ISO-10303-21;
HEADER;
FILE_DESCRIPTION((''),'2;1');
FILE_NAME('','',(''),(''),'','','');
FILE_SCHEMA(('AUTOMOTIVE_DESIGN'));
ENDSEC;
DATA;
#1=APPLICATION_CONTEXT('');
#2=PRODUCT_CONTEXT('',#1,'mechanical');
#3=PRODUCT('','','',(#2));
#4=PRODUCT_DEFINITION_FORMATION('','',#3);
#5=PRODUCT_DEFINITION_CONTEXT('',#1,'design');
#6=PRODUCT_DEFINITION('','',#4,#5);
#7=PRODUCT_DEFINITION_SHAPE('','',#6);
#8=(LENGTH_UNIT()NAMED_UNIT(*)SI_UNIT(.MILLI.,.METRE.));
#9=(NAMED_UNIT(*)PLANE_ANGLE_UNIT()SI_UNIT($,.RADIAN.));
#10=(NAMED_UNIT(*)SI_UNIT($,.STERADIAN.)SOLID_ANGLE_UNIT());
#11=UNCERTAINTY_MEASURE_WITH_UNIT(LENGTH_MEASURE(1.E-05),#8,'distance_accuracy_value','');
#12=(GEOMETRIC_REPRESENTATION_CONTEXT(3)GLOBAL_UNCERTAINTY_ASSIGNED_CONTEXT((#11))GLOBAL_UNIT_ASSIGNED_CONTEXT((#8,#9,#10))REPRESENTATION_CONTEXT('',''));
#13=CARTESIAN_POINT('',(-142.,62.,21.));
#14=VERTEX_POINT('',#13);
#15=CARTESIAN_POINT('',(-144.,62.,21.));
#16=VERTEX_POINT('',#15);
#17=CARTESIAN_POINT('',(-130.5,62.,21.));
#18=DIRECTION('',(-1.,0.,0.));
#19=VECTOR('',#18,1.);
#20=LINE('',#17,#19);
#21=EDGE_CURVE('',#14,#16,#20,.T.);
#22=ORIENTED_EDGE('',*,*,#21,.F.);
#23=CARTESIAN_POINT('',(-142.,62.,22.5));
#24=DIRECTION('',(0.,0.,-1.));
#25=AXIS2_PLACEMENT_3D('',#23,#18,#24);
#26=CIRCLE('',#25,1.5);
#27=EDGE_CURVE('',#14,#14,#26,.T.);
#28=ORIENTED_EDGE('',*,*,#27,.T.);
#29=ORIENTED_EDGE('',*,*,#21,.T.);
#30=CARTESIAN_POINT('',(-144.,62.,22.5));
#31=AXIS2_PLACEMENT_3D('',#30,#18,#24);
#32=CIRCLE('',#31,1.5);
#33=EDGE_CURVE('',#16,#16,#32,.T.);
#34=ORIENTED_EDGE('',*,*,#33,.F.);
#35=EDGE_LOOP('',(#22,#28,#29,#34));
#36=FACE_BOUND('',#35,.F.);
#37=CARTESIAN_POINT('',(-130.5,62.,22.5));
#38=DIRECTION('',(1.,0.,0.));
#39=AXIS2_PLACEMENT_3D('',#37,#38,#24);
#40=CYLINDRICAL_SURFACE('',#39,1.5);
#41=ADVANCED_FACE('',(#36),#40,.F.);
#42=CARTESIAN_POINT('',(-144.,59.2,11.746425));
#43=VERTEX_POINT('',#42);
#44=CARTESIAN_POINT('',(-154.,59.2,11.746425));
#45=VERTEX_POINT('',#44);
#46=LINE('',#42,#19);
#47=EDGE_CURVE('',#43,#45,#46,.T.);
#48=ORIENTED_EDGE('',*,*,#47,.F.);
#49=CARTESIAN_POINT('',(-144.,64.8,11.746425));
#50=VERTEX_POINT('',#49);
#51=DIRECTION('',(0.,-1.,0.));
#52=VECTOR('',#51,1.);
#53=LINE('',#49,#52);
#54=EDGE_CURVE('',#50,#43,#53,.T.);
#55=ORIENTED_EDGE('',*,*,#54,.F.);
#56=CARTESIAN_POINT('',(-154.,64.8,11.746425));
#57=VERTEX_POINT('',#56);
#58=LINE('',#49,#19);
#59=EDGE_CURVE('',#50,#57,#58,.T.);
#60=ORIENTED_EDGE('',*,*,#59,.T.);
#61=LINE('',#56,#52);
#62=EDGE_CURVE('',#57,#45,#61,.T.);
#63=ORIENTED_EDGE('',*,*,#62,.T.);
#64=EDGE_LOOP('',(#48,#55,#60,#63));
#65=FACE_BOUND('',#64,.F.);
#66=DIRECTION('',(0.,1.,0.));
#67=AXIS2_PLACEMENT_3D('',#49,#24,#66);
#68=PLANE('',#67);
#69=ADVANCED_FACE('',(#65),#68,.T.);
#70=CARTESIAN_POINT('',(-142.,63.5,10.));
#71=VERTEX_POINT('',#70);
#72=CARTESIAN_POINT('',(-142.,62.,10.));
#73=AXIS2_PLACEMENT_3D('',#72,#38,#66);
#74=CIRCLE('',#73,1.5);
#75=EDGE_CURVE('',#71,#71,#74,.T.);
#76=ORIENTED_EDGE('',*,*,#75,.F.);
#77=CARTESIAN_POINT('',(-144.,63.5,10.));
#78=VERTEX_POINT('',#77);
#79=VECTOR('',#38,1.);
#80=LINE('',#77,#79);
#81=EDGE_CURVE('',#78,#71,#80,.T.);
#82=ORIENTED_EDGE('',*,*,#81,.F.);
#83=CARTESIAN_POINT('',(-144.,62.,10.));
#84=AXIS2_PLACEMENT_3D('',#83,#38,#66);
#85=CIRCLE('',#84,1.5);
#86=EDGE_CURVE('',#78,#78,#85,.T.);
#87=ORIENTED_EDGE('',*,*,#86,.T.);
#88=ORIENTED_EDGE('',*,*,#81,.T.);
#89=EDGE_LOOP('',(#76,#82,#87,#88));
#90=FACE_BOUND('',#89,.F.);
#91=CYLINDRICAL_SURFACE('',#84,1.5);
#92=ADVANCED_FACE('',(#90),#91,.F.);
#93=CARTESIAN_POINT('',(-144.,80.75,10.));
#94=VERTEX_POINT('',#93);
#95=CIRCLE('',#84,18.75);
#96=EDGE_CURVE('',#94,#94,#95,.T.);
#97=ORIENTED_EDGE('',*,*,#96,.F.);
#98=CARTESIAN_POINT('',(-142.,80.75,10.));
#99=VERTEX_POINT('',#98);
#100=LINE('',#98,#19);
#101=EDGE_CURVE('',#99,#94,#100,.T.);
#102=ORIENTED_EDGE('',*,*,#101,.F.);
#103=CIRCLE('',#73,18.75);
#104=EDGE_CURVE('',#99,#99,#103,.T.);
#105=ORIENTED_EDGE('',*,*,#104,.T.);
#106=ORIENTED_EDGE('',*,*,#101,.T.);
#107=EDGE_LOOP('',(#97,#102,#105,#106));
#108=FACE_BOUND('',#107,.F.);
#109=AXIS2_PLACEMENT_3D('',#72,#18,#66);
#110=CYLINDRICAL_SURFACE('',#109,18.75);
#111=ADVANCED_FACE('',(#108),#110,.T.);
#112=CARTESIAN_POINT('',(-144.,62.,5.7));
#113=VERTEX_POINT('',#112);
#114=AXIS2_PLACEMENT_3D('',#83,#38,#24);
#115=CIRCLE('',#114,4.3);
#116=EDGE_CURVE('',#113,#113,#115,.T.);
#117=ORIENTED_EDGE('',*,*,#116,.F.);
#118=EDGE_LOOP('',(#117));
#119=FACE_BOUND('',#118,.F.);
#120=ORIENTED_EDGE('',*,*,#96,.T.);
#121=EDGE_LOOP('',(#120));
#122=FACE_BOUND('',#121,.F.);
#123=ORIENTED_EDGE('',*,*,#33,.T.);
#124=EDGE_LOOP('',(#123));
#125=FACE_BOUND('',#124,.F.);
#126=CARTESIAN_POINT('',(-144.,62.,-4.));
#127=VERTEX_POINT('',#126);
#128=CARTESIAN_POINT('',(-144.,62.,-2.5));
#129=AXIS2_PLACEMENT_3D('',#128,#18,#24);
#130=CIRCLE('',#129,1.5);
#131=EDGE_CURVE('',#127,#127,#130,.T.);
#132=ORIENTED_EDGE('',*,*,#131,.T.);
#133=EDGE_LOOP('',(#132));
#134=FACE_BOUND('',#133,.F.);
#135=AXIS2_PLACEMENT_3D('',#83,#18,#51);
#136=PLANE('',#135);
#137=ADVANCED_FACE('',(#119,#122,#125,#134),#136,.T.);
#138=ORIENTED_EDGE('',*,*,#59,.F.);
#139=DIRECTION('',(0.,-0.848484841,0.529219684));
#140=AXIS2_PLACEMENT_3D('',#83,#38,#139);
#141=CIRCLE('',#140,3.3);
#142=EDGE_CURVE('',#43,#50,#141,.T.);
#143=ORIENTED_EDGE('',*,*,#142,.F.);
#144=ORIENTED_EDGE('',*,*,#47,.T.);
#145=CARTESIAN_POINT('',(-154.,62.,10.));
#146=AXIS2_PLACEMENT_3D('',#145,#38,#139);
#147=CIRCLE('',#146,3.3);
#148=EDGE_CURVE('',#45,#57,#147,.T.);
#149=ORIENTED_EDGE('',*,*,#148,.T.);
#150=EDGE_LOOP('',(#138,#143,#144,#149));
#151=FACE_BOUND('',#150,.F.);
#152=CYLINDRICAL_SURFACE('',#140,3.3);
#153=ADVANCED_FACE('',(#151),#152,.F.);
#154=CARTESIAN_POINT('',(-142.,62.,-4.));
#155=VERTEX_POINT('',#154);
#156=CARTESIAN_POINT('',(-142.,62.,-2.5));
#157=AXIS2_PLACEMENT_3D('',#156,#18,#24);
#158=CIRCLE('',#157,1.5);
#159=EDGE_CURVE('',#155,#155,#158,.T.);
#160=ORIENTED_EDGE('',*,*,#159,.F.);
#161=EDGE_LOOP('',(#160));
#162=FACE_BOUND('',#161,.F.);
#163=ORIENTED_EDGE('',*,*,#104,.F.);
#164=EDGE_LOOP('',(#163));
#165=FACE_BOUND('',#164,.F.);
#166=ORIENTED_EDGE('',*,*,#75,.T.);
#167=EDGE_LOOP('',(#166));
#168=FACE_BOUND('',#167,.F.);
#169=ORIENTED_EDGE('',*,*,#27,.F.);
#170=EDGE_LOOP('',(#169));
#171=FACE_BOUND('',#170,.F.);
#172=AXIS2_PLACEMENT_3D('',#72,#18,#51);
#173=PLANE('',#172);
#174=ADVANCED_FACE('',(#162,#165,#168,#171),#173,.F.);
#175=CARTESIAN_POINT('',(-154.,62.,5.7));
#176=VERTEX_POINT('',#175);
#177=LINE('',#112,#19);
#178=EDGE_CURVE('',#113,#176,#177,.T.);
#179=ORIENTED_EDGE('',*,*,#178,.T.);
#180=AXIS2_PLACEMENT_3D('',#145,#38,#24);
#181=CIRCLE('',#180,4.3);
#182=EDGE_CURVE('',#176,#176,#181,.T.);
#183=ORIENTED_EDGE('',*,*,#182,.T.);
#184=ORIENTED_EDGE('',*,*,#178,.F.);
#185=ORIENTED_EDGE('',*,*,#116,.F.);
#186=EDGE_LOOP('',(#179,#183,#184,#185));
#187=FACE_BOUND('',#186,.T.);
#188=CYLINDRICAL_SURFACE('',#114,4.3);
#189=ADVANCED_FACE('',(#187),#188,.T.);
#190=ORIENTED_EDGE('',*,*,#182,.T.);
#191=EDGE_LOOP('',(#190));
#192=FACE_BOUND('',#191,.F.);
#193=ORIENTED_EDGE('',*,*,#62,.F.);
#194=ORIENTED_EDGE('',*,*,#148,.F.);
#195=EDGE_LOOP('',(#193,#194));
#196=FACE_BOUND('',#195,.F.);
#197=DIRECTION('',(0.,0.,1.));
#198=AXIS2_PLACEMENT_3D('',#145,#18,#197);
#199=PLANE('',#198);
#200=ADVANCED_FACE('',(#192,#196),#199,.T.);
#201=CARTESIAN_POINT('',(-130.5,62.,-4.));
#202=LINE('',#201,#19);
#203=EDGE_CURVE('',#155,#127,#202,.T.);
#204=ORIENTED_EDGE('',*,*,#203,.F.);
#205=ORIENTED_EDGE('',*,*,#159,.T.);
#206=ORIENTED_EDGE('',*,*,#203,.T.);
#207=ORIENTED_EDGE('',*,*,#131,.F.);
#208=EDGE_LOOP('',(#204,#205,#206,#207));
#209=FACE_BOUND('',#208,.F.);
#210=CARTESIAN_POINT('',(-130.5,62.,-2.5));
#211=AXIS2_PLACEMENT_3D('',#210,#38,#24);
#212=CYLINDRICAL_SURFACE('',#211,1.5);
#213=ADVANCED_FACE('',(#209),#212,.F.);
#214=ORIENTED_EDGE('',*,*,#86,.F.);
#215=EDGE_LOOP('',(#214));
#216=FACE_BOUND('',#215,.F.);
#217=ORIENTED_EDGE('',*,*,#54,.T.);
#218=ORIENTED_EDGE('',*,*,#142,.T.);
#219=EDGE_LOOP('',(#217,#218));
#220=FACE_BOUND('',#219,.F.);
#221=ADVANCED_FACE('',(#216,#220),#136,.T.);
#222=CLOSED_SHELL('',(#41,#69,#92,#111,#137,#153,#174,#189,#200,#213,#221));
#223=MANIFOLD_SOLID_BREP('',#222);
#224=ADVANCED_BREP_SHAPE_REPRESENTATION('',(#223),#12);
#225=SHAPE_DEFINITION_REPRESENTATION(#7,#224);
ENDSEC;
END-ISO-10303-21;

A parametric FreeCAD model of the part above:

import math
import FreeCAD as App
import Part
import Sketcher

V = App.Vector
Q = App.Units.Quantity


def add_polygon(sketch, points):
    """Adds a closed chain of lines whose ends are joined by coincident constraints."""
    first, n = sketch.GeometryCount, len(points)
    for a, b in zip(points, points[1:] + points[:1]):
        sketch.addGeometry(Part.LineSegment(App.Vector(*a, 0), App.Vector(*b, 0)), False)
    for i in range(n):
        sketch.addConstraint(Sketcher.Constraint("Coincident", first + i, 2, first + (i + 1) % n, 1))

doc = App.newDocument("Part")
body = doc.addObject("PartDesign::Body", "Body")

sketch1 = doc.addObject("Sketcher::SketchObject", "Sketch")
body.addObject(sketch1)
sketch1.AttachmentSupport = (doc.XY_Plane, [""])
sketch1.MapMode = "FlatFace"
sketch1.addGeometry(Part.Circle(V(0, 0, 0), V(0, 0, 1), 1.5), False)
sketch1.addConstraint(Sketcher.Constraint("Coincident", 0, 3, -1, 1))
sketch1.addConstraint(Sketcher.Constraint("Diameter", 0, Q("3 mm")))
pad1 = doc.addObject("PartDesign::Pad", "Pad")
body.addObject(pad1)
pad1.Profile = sketch1
pad1.Length = 15
body2 = doc.addObject("PartDesign::Body", "Body001")
doc.recompute()

body.Placement = App.Placement(V(0, 0, 0), App.Rotation(V(0, 1, 0), 90))
boolean = doc.addObject("PartDesign::Boolean", "Boolean")
body2.addObject(boolean)
boolean.Type = "Fuse"
boolean.addObjects([body])
body3 = doc.addObject("PartDesign::Body", "Body002")
doc.recompute()

body2.Placement = App.Placement(V(163.5, 47, -2.5), App.Rotation(V(0, 0, 1), 0))
boolean2 = doc.addObject("PartDesign::Boolean", "Boolean001")
body3.addObject(boolean2)
boolean2.Type = "Fuse"
boolean2.addObjects([body2])
body4 = doc.addObject("PartDesign::Body", "Body003")

sketch2 = doc.addObject("Sketcher::SketchObject", "Sketch001")
body4.addObject(sketch2)
sketch2.AttachmentSupport = (doc.getObject("XY_Plane003"), [""])
sketch2.MapMode = "FlatFace"
sketch2.addGeometry(Part.Circle(V(0, 0, 0), V(0, 0, 1), 1.5), False)
sketch2.addConstraint(Sketcher.Constraint("Coincident", 0, 3, -1, 1))
sketch2.addConstraint(Sketcher.Constraint("Diameter", 0, Q("3 mm")))
pad2 = doc.addObject("PartDesign::Pad", "Pad001")
body4.addObject(pad2)
pad2.Profile = sketch2
pad2.Length = 15
body5 = doc.addObject("PartDesign::Body", "Body004")
doc.recompute()

body4.Placement = App.Placement(V(0, 0, 0), App.Rotation(V(0, 1, 0), 90))
boolean3 = doc.addObject("PartDesign::Boolean", "Boolean002")
body5.addObject(boolean3)
boolean3.Type = "Fuse"
boolean3.addObjects([body4])
body6 = doc.addObject("PartDesign::Body", "Body005")
body6.AllowCompound = True
doc.recompute()

body5.Placement = App.Placement(V(163.5, 47, 22.5), App.Rotation(V(0, 0, 1), 0))
boolean4 = doc.addObject("PartDesign::Boolean", "Boolean003")
body6.addObject(boolean4)
boolean4.Type = "Fuse"
boolean4.addObjects([body5])
doc.recompute()

boolean5 = doc.addObject("PartDesign::Boolean", "Boolean004")
body6.addObject(boolean5)
boolean5.Type = "Fuse"
boolean5.addObjects([body3])
body7 = doc.addObject("PartDesign::Body", "Body006")

sketch3 = doc.addObject("Sketcher::SketchObject", "Sketch002")
body7.addObject(sketch3)
sketch3.AttachmentSupport = (doc.getObject("XY_Plane006"), [""])
sketch3.MapMode = "FlatFace"
sketch3.AttachmentOffset = App.Placement(V(0, 0, 2), App.Rotation())
sketch3.addGeometry(Part.Circle(V(0, 0, 0), V(0, 0, 1), 4.3), False)
sketch3.addGeometry(Part.LineSegment(V(-1.7, -2.8, 0), V(-1.7, 2.8, 0)), False)
sketch3.addGeometry(Part.ArcOfCircle(Part.Circle(V(0, 0, 0), V(0, 0, 1), 3.3), math.radians(-122), math.radians(122)), False)
sketch3.addConstraint(Sketcher.Constraint("Coincident", 1, 1, 2, 1))
sketch3.addConstraint(Sketcher.Constraint("Coincident", 2, 2, 1, 2))
sketch3.addConstraint(Sketcher.Constraint("Vertical", 1))
sketch3.addConstraint(Sketcher.Constraint("Coincident", 0, 3, -1, 1))
sketch3.addConstraint(Sketcher.Constraint("Coincident", 2, 3, -1, 1))
sketch3.addConstraint(Sketcher.Constraint("Diameter", 0, Q("8.6 mm")))
sketch3.addConstraint(Sketcher.Constraint("Radius", 2, Q("3.3 mm")))
sketch3.addConstraint(Sketcher.Constraint("DistanceY", 1, 1, 1, 2, Q("5.6 mm")))
pad3 = doc.addObject("PartDesign::Pad", "Pad002")
body7.addObject(pad3)
pad3.Profile = sketch3
pad3.Length = 10
body8 = doc.addObject("PartDesign::Body", "Body007")

sketch4 = doc.addObject("Sketcher::SketchObject", "Sketch003")
body8.addObject(sketch4)
sketch4.AttachmentSupport = (doc.getObject("YZ_Plane007"), [""])
sketch4.MapMode = "FlatFace"
add_polygon(sketch4, [(18.8, 0), (18.8, 2), (1.5, 2), (1.5, 0)])
sketch4.addConstraint(Sketcher.Constraint("Vertical", 0))
sketch4.addConstraint(Sketcher.Constraint("Horizontal", 1))
sketch4.addConstraint(Sketcher.Constraint("Vertical", 2))
sketch4.addConstraint(Sketcher.Constraint("Horizontal", 3))
sketch4.addConstraint(Sketcher.Constraint("PointOnObject", 2, 2, -1))
sketch4.addConstraint(Sketcher.Constraint("DistanceY", 0, 1, 0, 2, Q("2 mm")))
sketch4.addConstraint(Sketcher.Constraint("DistanceX", 1, 2, 1, 1, Q("17.25 mm")))
sketch4.addConstraint(Sketcher.Constraint("DistanceX", -1, 1, 1, 2, Q("1.5 mm")))
revolution = doc.addObject("PartDesign::Revolution", "Revolution")
body8.addObject(revolution)
revolution.Profile = sketch4
revolution.ReferenceAxis = (sketch4, ["V_Axis"])
revolution.Angle = 360
doc.recompute()

boolean6 = doc.addObject("PartDesign::Boolean", "Boolean005")
body8.addObject(boolean6)
boolean6.Type = "Fuse"
boolean6.addObjects([body7])
body9 = doc.addObject("PartDesign::Body", "Body008")
doc.recompute()

body8.Placement = App.Placement(V(0, 0, 0), App.Rotation(V(0, 1, 0), 90))
boolean7 = doc.addObject("PartDesign::Boolean", "Boolean006")
body9.addObject(boolean7)
boolean7.Type = "Fuse"
boolean7.addObjects([body8])
body10 = doc.addObject("PartDesign::Body", "Body009")
doc.recompute()

body9.Placement = App.Placement(V(175, 47, 10), App.Rotation(V(0, 0, 1), 0))
boolean8 = doc.addObject("PartDesign::Boolean", "Boolean007")
body10.addObject(boolean8)
boolean8.Type = "Fuse"
boolean8.addObjects([body9])
doc.recompute()

boolean9 = doc.addObject("PartDesign::Boolean", "Boolean008")
body10.addObject(boolean9)
boolean9.Type = "Cut"
boolean9.addObjects([body6])
body11 = doc.addObject("PartDesign::Body", "Body010")
doc.recompute()

body10.Placement = App.Placement(V(-23, 15, 0), App.Rotation(V(0, 0, 1), 0))
boolean10 = doc.addObject("PartDesign::Boolean", "Boolean009")
body11.addObject(boolean10)
boolean10.Type = "Fuse"
boolean10.addObjects([body10])
body12 = doc.addObject("PartDesign::Body", "Body011")
doc.recompute()

mirroring = doc.addObject("Part::Mirroring", "Mirroring")
mirroring.Source = body11
mirroring.Base = V(5, 0, 0)
mirroring.Normal = V(1, 0, 0)
body12.BaseFeature = mirroring
doc.recompute()
body11.Visibility = False
mirroring.Visibility = False

doc.recompute()
